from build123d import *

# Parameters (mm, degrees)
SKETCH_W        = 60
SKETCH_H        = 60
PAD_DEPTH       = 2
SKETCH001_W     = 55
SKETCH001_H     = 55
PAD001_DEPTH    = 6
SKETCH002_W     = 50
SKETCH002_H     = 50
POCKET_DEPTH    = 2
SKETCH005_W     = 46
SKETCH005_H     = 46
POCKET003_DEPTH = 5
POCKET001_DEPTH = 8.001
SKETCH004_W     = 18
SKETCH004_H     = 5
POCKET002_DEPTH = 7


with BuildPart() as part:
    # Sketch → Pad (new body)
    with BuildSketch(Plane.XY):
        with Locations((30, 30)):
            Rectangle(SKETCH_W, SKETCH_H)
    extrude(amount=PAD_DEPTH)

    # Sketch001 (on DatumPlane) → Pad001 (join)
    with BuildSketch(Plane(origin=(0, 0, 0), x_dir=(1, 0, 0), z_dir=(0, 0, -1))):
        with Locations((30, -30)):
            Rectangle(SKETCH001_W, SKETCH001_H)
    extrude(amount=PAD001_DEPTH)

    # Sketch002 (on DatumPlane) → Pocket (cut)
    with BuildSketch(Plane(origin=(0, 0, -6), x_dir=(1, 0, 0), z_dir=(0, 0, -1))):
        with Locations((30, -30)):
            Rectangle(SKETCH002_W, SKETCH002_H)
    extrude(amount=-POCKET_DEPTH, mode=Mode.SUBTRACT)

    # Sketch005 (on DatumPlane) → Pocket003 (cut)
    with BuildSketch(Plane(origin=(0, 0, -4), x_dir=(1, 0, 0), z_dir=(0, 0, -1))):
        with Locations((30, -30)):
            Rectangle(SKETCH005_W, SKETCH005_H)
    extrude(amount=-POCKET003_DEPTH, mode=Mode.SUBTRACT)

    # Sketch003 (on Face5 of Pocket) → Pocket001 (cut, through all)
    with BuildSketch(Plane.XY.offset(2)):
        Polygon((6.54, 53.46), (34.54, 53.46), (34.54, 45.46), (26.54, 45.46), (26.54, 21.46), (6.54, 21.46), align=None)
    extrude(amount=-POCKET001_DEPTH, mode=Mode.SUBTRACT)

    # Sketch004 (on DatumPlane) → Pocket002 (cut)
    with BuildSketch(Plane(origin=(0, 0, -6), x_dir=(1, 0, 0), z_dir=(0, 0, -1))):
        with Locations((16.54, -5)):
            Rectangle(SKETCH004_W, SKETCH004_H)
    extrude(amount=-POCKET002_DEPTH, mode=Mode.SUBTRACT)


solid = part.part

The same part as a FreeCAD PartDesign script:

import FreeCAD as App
import Part
import Sketcher
Q = App.Units.Quantity


def add_polygon(sketch, points):
    """Adds a closed chain of lines whose ends are joined by coincident constraints."""
    first, n = sketch.GeometryCount, len(points)
    for a, b in zip(points, points[1:] + points[:1]):
        sketch.addGeometry(Part.LineSegment(App.Vector(*a, 0), App.Vector(*b, 0)), False)
    for i in range(n):
        sketch.addConstraint(Sketcher.Constraint("Coincident", first + i, 2, first + (i + 1) % n, 1))

doc = App.newDocument("Part")
params = doc.addObject("Spreadsheet::Sheet", "Params")
for row, (alias, value) in enumerate([
    ("sketch1_width", "60 mm"),
    ("pad1_length", "2 mm"),
    ("sketch2_width", "55 mm"),
    ("pad2_length", "6 mm"),
    ("sketch3_width", "50 mm"),
    ("pocket1_length", "2 mm"),
    ("sketch4_width", "46 mm"),
    ("pocket2_length", "5 mm"),
    ("sketch5_width", "28 mm"),
    ("sketch5_width2", "20 mm"),
    ("sketch5_height", "32 mm"),
    ("sketch6_width", "18 mm"),
    ("sketch6_height", "5 mm"),
    ("pocket4_length", "7 mm"),
], start=1):
    params.set(f"A{row}", alias)
    params.set(f"B{row}", "=" + value)
    params.setAlias(f"B{row}", alias)

body = doc.addObject("PartDesign::Body", "Body")

# Sketch on XY plane
sketch1 = body.newObject("Sketcher::SketchObject", "Sketch")
sketch1.AttachmentSupport = (doc.getObject("XY_Plane"), [""])
sketch1.MapMode = "FlatFace"
add_polygon(sketch1, [(0, 60), (0, 0), (60, 0), (60, 60)])  # lines 0-3
sketch1.addConstraint(Sketcher.Constraint("Vertical", 0))
sketch1.addConstraint(Sketcher.Constraint("Horizontal", 1))
sketch1.addConstraint(Sketcher.Constraint("Vertical", 2))
sketch1.addConstraint(Sketcher.Constraint("Horizontal", 3))
sketch1.addConstraint(Sketcher.Constraint("Coincident", 0, 2, -1, 1))
sketch1.addConstraint(Sketcher.Constraint("Equal", 3, 0))
sketch1.addConstraint(Sketcher.Constraint("DistanceX", 1, 1, 1, 2, Q("60 mm")))
sketch1.setExpression("Constraints[10]", "Params.sketch1_width")
pad1 = body.newObject("PartDesign::Pad", "Pad")
pad1.Profile = sketch1
pad1.setExpression("Length", "Params.pad1_length")

# Sketch on XY plane
sketch2 = body.newObject("Sketcher::SketchObject", "Sketch001")
sketch2.AttachmentSupport = (doc.getObject("XY_Plane"), [""])
sketch2.MapMode = "FlatFace"
add_polygon(sketch2, [(2.5, 2.5), (2.5, 57.5), (57.5, 57.5), (57.5, 2.5)])  # lines 0-3
sketch2.addConstraint(Sketcher.Constraint("Vertical", 0))
sketch2.addConstraint(Sketcher.Constraint("Horizontal", 1))
sketch2.addConstraint(Sketcher.Constraint("Vertical", 2))
sketch2.addConstraint(Sketcher.Constraint("Horizontal", 3))
sketch2.addConstraint(Sketcher.Constraint("Equal", 3, 0))
sketch2.addConstraint(Sketcher.Constraint("DistanceX", 1, 1, 1, 2, Q("55 mm")))
sketch2.addConstraint(Sketcher.Constraint("DistanceX", -1, 1, 0, 2, Q("2.5 mm")))
sketch2.addConstraint(Sketcher.Constraint("DistanceY", -1, 1, 0, 2, Q("57.5 mm")))
sketch2.setExpression("Constraints[9]", "Params.sketch2_width")
pad2 = body.newObject("PartDesign::Pad", "Pad001")
pad2.Profile = sketch2
pad2.setExpression("Length", "Params.pad2_length")
pad2.Reversed = True

# Sketch on XY plane
sketch3 = body.newObject("Sketcher::SketchObject", "Sketch002")
sketch3.AttachmentSupport = (doc.getObject("XY_Plane"), [""])
sketch3.MapMode = "FlatFace"
sketch3.AttachmentOffset = App.Placement(App.Vector(0, 0, -6), App.Rotation())
add_polygon(sketch3, [(5, 5), (5, 55), (55, 55), (55, 5)])  # lines 0-3
sketch3.addConstraint(Sketcher.Constraint("Vertical", 0))
sketch3.addConstraint(Sketcher.Constraint("Horizontal", 1))
sketch3.addConstraint(Sketcher.Constraint("Vertical", 2))
sketch3.addConstraint(Sketcher.Constraint("Horizontal", 3))
sketch3.addConstraint(Sketcher.Constraint("Equal", 3, 0))
sketch3.addConstraint(Sketcher.Constraint("DistanceX", 1, 1, 1, 2, Q("50 mm")))
sketch3.addConstraint(Sketcher.Constraint("DistanceX", -1, 1, 0, 2, Q("5 mm")))
sketch3.addConstraint(Sketcher.Constraint("DistanceY", -1, 1, 0, 2, Q("55 mm")))
sketch3.setExpression("Constraints[9]", "Params.sketch3_width")
pocket1 = body.newObject("PartDesign::Pocket", "Pocket")
pocket1.Profile = sketch3
pocket1.setExpression("Length", "Params.pocket1_length")
pocket1.Reversed = True

# Sketch on XY plane
sketch4 = body.newObject("Sketcher::SketchObject", "Sketch003")
sketch4.AttachmentSupport = (doc.getObject("XY_Plane"), [""])
sketch4.MapMode = "FlatFace"
sketch4.AttachmentOffset = App.Placement(App.Vector(0, 0, -4), App.Rotation())
add_polygon(sketch4, [(7, 7), (7, 53), (53, 53), (53, 7)])  # lines 0-3
sketch4.addConstraint(Sketcher.Constraint("Vertical", 0))
sketch4.addConstraint(Sketcher.Constraint("Horizontal", 1))
sketch4.addConstraint(Sketcher.Constraint("Vertical", 2))
sketch4.addConstraint(Sketcher.Constraint("Horizontal", 3))
sketch4.addConstraint(Sketcher.Constraint("Equal", 3, 0))
sketch4.addConstraint(Sketcher.Constraint("DistanceX", 1, 1, 1, 2, Q("46 mm")))
sketch4.addConstraint(Sketcher.Constraint("DistanceX", -1, 1, 0, 2, Q("7 mm")))
sketch4.addConstraint(Sketcher.Constraint("DistanceY", -1, 1, 0, 2, Q("53 mm")))
sketch4.setExpression("Constraints[9]", "Params.sketch4_width")
pocket2 = body.newObject("PartDesign::Pocket", "Pocket001")
pocket2.Profile = sketch4
pocket2.setExpression("Length", "Params.pocket2_length")
pocket2.Reversed = True

# Sketch on XY plane
sketch5 = body.newObject("Sketcher::SketchObject", "Sketch004")
sketch5.AttachmentSupport = (doc.getObject("XY_Plane"), [""])
sketch5.MapMode = "FlatFace"
sketch5.AttachmentOffset = App.Placement(App.Vector(0, 0, 2), App.Rotation())
add_polygon(sketch5, [(34.54, 53.46), (6.54, 53.46), (6.54, 21.46), (26.54, 21.46), (26.54, 45.46), (34.54, 45.46)])  # lines 0-5
sketch5.addConstraint(Sketcher.Constraint("Horizontal", 0))
sketch5.addConstraint(Sketcher.Constraint("Vertical", 1))
sketch5.addConstraint(Sketcher.Constraint("Horizontal", 2))
sketch5.addConstraint(Sketcher.Constraint("Vertical", 3))
sketch5.addConstraint(Sketcher.Constraint("Horizontal", 4))
sketch5.addConstraint(Sketcher.Constraint("Vertical", 5))
sketch5.addConstraint(Sketcher.Constraint("Equal", 4, 5))
sketch5.addConstraint(Sketcher.Constraint("DistanceX", 0, 2, 0, 1, Q("28 mm")))
sketch5.addConstraint(Sketcher.Constraint("DistanceX", 2, 1, 2, 2, Q("20 mm")))
sketch5.addConstraint(Sketcher.Constraint("DistanceY", 1, 2, 1, 1, Q("32 mm")))
sketch5.addConstraint(Sketcher.Constraint("DistanceX", -1, 1, 0, 2, Q("6.54 mm")))
sketch5.addConstraint(Sketcher.Constraint("DistanceY", -1, 1, 0, 2, Q("53.46 mm")))
sketch5.setExpression("Constraints[13]", "Params.sketch5_width")
sketch5.setExpression("Constraints[14]", "Params.sketch5_width2")
sketch5.setExpression("Constraints[15]", "Params.sketch5_height")
pocket3 = body.newObject("PartDesign::Pocket", "Pocket002")
pocket3.Profile = sketch5
pocket3.Type = "ThroughAll"

# Sketch on XY plane
sketch6 = body.newObject("Sketcher::SketchObject", "Sketch005")
sketch6.AttachmentSupport = (doc.getObject("XY_Plane"), [""])
sketch6.MapMode = "FlatFace"
sketch6.AttachmentOffset = App.Placement(App.Vector(0, 0, -6), App.Rotation())
add_polygon(sketch6, [(7.54, 2.5), (7.54, 7.5), (25.54, 7.5), (25.54, 2.5)])  # lines 0-3
sketch6.addConstraint(Sketcher.Constraint("Vertical", 0))
sketch6.addConstraint(Sketcher.Constraint("Horizontal", 1))
sketch6.addConstraint(Sketcher.Constraint("Vertical", 2))
sketch6.addConstraint(Sketcher.Constraint("Horizontal", 3))
sketch6.addConstraint(Sketcher.Constraint("DistanceX", 1, 1, 1, 2, Q("18 mm")))
sketch6.addConstraint(Sketcher.Constraint("DistanceY", 0, 1, 0, 2, Q("5 mm")))
sketch6.addConstraint(Sketcher.Constraint("DistanceY", -1, 1, 0, 2, Q("7.5 mm")))
sketch6.addConstraint(Sketcher.Constraint("DistanceX", -1, 1, 0, 2, Q("7.54 mm")))
sketch6.setExpression("Constraints[8]", "Params.sketch6_width")
sketch6.setExpression("Constraints[9]", "Params.sketch6_height")
pocket4 = body.newObject("PartDesign::Pocket", "Pocket003")
pocket4.Profile = sketch6
pocket4.setExpression("Length", "Params.pocket4_length")
pocket4.Reversed = True

doc.recompute()
